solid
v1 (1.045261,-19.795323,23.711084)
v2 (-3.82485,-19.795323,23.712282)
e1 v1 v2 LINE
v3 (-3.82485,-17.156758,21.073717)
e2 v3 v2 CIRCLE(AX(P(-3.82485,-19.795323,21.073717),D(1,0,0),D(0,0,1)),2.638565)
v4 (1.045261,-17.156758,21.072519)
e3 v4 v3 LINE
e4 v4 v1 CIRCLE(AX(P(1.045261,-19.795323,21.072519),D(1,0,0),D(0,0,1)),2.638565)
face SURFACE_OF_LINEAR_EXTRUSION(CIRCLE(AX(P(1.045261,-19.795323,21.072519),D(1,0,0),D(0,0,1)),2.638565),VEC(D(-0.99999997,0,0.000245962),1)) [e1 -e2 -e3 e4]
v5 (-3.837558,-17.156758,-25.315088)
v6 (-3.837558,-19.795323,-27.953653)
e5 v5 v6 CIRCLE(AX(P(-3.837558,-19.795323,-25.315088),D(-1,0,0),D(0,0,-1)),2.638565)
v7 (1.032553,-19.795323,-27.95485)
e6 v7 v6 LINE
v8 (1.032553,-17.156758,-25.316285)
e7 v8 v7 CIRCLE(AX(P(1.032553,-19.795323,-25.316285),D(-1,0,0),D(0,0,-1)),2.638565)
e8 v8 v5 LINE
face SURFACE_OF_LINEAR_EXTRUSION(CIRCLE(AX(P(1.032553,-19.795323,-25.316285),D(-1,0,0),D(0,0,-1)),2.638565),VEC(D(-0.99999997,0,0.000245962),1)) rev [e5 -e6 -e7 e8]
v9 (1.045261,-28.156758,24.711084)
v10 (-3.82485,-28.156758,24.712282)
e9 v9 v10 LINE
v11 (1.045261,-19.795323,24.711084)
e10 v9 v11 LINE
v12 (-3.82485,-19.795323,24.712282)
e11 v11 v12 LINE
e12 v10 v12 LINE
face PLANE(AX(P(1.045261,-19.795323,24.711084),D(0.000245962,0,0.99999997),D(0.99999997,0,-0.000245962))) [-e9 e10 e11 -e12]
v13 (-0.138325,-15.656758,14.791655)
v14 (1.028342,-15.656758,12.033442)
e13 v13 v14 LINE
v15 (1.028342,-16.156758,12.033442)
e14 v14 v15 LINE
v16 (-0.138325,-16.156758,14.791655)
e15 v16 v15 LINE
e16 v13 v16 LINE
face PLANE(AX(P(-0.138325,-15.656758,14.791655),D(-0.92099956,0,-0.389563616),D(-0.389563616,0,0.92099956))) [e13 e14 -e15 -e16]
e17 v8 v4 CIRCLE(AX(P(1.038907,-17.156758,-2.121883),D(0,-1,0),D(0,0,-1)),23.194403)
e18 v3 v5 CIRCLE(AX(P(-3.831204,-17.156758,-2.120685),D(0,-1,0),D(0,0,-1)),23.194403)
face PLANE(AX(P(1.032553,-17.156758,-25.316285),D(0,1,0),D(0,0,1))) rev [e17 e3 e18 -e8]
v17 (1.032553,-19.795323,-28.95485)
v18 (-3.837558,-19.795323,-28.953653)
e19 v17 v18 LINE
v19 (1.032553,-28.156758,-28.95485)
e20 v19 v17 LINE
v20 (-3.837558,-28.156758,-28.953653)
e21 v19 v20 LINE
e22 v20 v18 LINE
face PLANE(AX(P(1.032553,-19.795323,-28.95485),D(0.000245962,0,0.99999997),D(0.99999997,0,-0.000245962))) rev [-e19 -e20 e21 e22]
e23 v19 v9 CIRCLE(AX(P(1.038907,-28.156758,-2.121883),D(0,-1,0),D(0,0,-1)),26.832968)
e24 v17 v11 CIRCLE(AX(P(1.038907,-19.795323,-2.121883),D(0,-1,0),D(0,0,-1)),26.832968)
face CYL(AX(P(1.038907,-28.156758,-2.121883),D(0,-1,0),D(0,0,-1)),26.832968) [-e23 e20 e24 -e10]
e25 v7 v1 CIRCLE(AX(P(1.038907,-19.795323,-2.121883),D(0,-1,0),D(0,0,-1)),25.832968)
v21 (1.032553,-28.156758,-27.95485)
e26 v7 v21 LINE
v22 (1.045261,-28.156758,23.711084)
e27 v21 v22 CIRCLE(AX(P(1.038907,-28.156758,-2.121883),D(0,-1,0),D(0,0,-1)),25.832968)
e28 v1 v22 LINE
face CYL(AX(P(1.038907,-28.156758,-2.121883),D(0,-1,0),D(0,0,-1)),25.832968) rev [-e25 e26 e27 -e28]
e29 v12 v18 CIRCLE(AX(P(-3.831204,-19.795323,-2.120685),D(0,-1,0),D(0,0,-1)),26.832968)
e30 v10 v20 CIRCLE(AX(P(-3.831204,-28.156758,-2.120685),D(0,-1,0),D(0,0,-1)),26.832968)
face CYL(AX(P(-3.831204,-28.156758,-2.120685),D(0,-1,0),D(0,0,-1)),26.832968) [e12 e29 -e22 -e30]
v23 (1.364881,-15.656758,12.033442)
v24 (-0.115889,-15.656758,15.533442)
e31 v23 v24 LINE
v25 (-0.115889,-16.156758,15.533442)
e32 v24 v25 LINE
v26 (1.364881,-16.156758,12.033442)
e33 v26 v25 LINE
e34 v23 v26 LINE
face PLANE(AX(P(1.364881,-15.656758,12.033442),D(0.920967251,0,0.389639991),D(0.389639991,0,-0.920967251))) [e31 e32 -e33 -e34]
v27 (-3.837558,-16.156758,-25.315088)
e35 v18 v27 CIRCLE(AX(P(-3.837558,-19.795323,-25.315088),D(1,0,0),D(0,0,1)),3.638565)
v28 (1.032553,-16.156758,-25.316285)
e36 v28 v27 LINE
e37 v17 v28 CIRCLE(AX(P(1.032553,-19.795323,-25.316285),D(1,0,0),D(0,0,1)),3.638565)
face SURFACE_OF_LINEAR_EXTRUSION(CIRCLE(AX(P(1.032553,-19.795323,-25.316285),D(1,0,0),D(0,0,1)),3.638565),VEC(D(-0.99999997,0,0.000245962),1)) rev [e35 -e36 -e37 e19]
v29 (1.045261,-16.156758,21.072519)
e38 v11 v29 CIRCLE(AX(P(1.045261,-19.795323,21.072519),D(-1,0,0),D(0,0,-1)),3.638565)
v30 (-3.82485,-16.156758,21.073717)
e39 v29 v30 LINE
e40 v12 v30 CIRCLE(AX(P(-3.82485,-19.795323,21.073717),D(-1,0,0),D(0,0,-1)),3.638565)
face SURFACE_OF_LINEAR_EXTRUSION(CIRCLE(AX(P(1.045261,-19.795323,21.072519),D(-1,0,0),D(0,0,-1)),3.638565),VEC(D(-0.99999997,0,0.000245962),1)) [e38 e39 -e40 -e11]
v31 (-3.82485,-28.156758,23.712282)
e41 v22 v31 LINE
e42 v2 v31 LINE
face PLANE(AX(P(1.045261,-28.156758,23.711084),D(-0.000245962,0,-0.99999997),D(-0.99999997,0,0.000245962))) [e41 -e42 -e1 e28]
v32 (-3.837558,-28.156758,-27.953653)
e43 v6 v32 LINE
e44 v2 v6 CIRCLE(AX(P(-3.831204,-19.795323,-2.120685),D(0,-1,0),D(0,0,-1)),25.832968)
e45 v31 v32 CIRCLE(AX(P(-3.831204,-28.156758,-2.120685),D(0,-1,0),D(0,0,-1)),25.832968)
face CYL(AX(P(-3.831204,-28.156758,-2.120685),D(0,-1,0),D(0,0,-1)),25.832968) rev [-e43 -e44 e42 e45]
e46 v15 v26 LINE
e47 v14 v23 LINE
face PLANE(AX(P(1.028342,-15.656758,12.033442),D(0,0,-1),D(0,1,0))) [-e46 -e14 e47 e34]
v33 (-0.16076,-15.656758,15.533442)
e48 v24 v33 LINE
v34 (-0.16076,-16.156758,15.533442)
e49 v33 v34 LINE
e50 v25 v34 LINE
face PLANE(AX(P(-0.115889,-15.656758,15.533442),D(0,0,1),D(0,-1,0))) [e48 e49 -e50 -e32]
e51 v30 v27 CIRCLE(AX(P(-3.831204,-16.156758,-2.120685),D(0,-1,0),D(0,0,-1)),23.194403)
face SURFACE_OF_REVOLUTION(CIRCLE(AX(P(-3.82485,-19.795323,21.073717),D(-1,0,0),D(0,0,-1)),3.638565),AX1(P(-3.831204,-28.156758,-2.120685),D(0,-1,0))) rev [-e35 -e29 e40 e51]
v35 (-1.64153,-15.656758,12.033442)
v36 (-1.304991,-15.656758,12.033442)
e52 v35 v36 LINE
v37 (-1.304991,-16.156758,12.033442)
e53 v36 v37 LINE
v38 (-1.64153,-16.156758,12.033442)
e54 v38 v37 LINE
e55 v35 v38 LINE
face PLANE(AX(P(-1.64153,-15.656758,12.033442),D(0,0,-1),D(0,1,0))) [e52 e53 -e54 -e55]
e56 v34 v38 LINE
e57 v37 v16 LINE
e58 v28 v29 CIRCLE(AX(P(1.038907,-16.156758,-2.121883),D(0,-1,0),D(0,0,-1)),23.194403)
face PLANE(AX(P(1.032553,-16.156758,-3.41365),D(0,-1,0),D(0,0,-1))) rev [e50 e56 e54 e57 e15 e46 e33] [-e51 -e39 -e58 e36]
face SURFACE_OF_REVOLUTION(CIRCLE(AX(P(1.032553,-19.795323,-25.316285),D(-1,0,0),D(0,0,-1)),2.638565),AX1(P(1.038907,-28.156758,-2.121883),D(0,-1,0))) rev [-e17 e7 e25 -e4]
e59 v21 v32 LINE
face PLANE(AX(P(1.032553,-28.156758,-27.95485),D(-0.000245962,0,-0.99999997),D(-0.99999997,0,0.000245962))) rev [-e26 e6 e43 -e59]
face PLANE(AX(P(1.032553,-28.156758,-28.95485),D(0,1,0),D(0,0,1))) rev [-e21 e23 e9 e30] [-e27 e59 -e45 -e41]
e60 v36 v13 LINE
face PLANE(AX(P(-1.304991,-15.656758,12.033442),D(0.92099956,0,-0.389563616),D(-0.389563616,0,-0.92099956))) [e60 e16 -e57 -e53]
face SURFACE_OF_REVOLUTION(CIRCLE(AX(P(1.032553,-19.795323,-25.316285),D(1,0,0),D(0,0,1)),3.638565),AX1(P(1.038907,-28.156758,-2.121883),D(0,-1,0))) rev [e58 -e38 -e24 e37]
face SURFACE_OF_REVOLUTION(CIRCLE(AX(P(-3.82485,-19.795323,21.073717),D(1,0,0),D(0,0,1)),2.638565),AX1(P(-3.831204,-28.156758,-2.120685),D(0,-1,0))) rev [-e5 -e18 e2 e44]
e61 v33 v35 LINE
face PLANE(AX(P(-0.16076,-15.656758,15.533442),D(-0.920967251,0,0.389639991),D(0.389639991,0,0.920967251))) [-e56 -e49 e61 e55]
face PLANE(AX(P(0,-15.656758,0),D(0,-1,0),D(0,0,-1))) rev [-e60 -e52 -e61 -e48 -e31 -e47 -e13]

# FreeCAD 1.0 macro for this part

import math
import FreeCAD as App
import Part
import Sketcher
from FreeCAD import Vector
Q = App.Units.Quantity


def add_polygon(sketch, points):
    """Adds a closed chain of lines whose ends are joined by coincident constraints."""
    first, n = sketch.GeometryCount, len(points)
    for a, b in zip(points, points[1:] + points[:1]):
        sketch.addGeometry(Part.LineSegment(App.Vector(*a, 0), App.Vector(*b, 0)), False)
    for i in range(n):
        sketch.addConstraint(Sketcher.Constraint("Coincident", first + i, 2, first + (i + 1) % n, 1))

doc = App.newDocument("Part")
body = doc.addObject("PartDesign::Body", "Body")

sketch1 = body.newObject("Sketcher::SketchObject", "Sketch")
sketch1.AttachmentSupport = (doc.getObject("YZ_Plane"), [""])
sketch1.MapMode = "FlatFace"
sketch1.addGeometry(Part.LineSegment(Vector(-19.8, -28, 0), Vector(-28.2, -28, 0)), False)
sketch1.addGeometry(Part.LineSegment(Vector(-28.2, -28, 0), Vector(-28.2, -29, 0)), False)
sketch1.addGeometry(Part.LineSegment(Vector(-28.2, -29, 0), Vector(-19.8, -29, 0)), False)
sketch1.addGeometry(Part.ArcOfCircle(Part.Circle(Vector(-19.8, -25.3, 0), Vector(0, 0, 1), 3.6), math.radians(-90), math.radians(0)), False)
sketch1.addGeometry(Part.LineSegment(Vector(-16.2, -25.3, 0), Vector(-16.2, -3.4, 0)), False)
sketch1.addGeometry(Part.LineSegment(Vector(-16.2, -3.4, 0), Vector(-17.2, -3.4, 0)), False)
sketch1.addGeometry(Part.LineSegment(Vector(-17.2, -3.4, 0), Vector(-17.2, -25.3, 0)), False)
sketch1.addGeometry(Part.ArcOfCircle(Part.Circle(Vector(-19.8, -25.3, 0), Vector(0, 0, 1), 2.6), math.radians(-90), math.radians(0)), False)
sketch1.addConstraint(Sketcher.Constraint("Coincident", 0, 2, 1, 1))
sketch1.addConstraint(Sketcher.Constraint("Coincident", 1, 2, 2, 1))
sketch1.addConstraint(Sketcher.Constraint("Tangent", 2, 2, 3, 1))
sketch1.addConstraint(Sketcher.Constraint("Tangent", 3, 2, 4, 1))
sketch1.addConstraint(Sketcher.Constraint("Coincident", 4, 2, 5, 1))
sketch1.addConstraint(Sketcher.Constraint("Coincident", 5, 2, 6, 1))
sketch1.addConstraint(Sketcher.Constraint("Tangent", 6, 2, 7, 2))
sketch1.addConstraint(Sketcher.Constraint("Tangent", 7, 1, 0, 1))
sketch1.addConstraint(Sketcher.Constraint("Horizontal", 0))
sketch1.addConstraint(Sketcher.Constraint("Vertical", 1))
sketch1.addConstraint(Sketcher.Constraint("Horizontal", 2))
sketch1.addConstraint(Sketcher.Constraint("Vertical", 4))
sketch1.addConstraint(Sketcher.Constraint("Horizontal", 5))
sketch1.addConstraint(Sketcher.Constraint("Vertical", 6))
sketch1.addConstraint(Sketcher.Constraint("Coincident", 7, 3, 3, 3))
sketch1.addConstraint(Sketcher.Constraint("DistanceX", 5, 2, 5, 1, Q("1 mm")))
sketch1.addConstraint(Sketcher.Constraint("DistanceX", 0, 2, 3, 2, Q("12 mm")))
sketch1.addConstraint(Sketcher.Constraint("Radius", 3, Q("3.638565 mm")))
sketch1.addConstraint(Sketcher.Constraint("DistanceY", 2, 2, 4, 2, Q("25.541201 mm")))
sketch1.addConstraint(Sketcher.Constraint("DistanceY", 3, 3, -1, 1, Q("25.316032 mm")))
sketch1.addConstraint(Sketcher.Constraint("DistanceX", 3, 3, -1, 1, Q("19.795323 mm")))

sketch2 = body.newObject("Sketcher::SketchObject", "Sketch001")
sketch2.AttachmentSupport = (doc.getObject("XZ_Plane"), [""])
sketch2.MapMode = "FlatFace"
sketch2.AttachmentOffset = App.Placement(Vector(0, 0, 28.156758), App.Rotation())
sketch2.addGeometry(Part.LineSegment(Vector(1, -28, 0), Vector(-3.8, -28, 0)), False)
sketch2.addGeometry(Part.ArcOfCircle(Part.Circle(Vector(-3.8, -2.1, 0), Vector(0, 0, 1), 25.8), math.radians(90), math.radians(270)), False)
sketch2.addGeometry(Part.LineSegment(Vector(-3.8, 23.7, 0), Vector(1, 23.7, 0)), False)
sketch2.addGeometry(Part.ArcOfCircle(Part.Circle(Vector(1, -2.1, 0), Vector(0, 0, 1), 25.8), math.radians(-90), math.radians(90)), False)
sketch2.addConstraint(Sketcher.Constraint("Tangent", 0, 2, 1, 2))
sketch2.addConstraint(Sketcher.Constraint("Tangent", 1, 1, 2, 1))
sketch2.addConstraint(Sketcher.Constraint("Tangent", 2, 2, 3, 2))
sketch2.addConstraint(Sketcher.Constraint("Tangent", 3, 1, 0, 1))
sketch2.addConstraint(Sketcher.Constraint("Equal", 1, 3))
sketch2.addConstraint(Sketcher.Constraint("Radius", 1, Q("25.833313 mm")))
sketch2.addConstraint(Sketcher.Constraint("Distance", 0, Q("4.87011 mm")))
sketch2.addConstraint(Sketcher.Constraint("DistanceX", 1, 1, -1, 1, Q("3.82485 mm")))
sketch2.addConstraint(Sketcher.Constraint("DistanceY", -1, 1, 2, 2, Q("23.711429 mm")))
sketch2.addConstraint(Sketcher.Constraint("DistanceY", 3, 3, 1, 1, Q("25.83451 mm")))
doc.recompute()

additivepipe = body.newObject("PartDesign::AdditivePipe", "AdditivePipe")
additivepipe.Profile = sketch1
additivepipe.Spine = (sketch2, ["Edge1", "Edge2", "Edge3", "Edge4"])

sketch3 = body.newObject("Sketcher::SketchObject", "Sketch002")
sketch3.Placement = App.Placement(Vector(-0.00084, 0, -3.413396), App.Rotation(Vector(0.99999997, 0, -0.000245962), Vector(0, 1, 0), Vector(0.000245962, 0, 0.99999997), "ZXY"))
add_polygon(sketch3, [(-7.9, -16.2), (-7.9, -17.2), (4.4, -17.2), (4.4, -16.2)])
sketch3.addConstraint(Sketcher.Constraint("Vertical", 0))
sketch3.addConstraint(Sketcher.Constraint("Horizontal", 1))
sketch3.addConstraint(Sketcher.Constraint("Vertical", 2))
sketch3.addConstraint(Sketcher.Constraint("Horizontal", 3))
sketch3.addConstraint(Sketcher.Constraint("DistanceY", 0, 2, 0, 1, Q("1 mm")))
sketch3.addConstraint(Sketcher.Constraint("DistanceX", 1, 1, 1, 2, Q("12.333298 mm")))
sketch3.addConstraint(Sketcher.Constraint("DistanceX", 0, 2, -1, 1, Q("7.897679 mm")))
sketch3.addConstraint(Sketcher.Constraint("DistanceY", 0, 2, -1, 1, Q("17.156758 mm")))
pad1 = body.newObject("PartDesign::Pad", "Pad")
pad1.Profile = sketch3
pad1.Type = "TwoLengths"
pad1.Length = 4
pad1.Length2 = 1

sketch4 = body.newObject("Sketcher::SketchObject", "Sketch003")
sketch4.AttachmentSupport = (doc.getObject("XZ_Plane"), [""])
sketch4.MapMode = "FlatFace"
sketch4.AttachmentOffset = App.Placement(Vector(0, 0, 16.156758), App.Rotation())
add_polygon(sketch4, [(-1.305, 12.033), (-1.642, 12.033), (-0.161, 15.533), (-0.116, 15.533), (1.365, 12.033), (1.028, 12.033), (-0.138, 14.792)])
sketch4.addConstraint(Sketcher.Constraint("Horizontal", 0))
sketch4.addConstraint(Sketcher.Constraint("Horizontal", 2))
sketch4.addConstraint(Sketcher.Constraint("Horizontal", 4))
sketch4.addConstraint(Sketcher.Constraint("Horizontal", 0, 2, 3, 2))
sketch4.addConstraint(Sketcher.Constraint("Equal", 0, 4))
sketch4.addConstraint(Sketcher.Constraint("Equal", 1, 3))
sketch4.addConstraint(Sketcher.Constraint("Equal", 5, 6))
sketch4.addConstraint(Sketcher.Constraint("DistanceY", 0, 2, 1, 2, Q("3.5 mm")))
sketch4.addConstraint(Sketcher.Constraint("DistanceX", 0, 2, 0, 1, Q("0.336538 mm")))
sketch4.addConstraint(Sketcher.Constraint("DistanceX", 2, 1, 2, 2, Q("0.044872 mm")))
sketch4.addConstraint(Sketcher.Constraint("DistanceX", 0, 2, -1, 1, Q("1.64153 mm")))
sketch4.addConstraint(Sketcher.Constraint("DistanceY", -1, 1, 0, 2, Q("12.033442 mm")))
sketch4.addConstraint(Sketcher.Constraint("DistanceX", 1, 2, -1, 1, Q("0.16076 mm")))
sketch4.addConstraint(Sketcher.Constraint("Distance", 5, Q("2.994804 mm")))
pad2 = body.newObject("PartDesign::Pad", "Pad001")
pad2.Profile = sketch4
pad2.Length = 0.5
pad2.Reversed = True

doc.recompute()
